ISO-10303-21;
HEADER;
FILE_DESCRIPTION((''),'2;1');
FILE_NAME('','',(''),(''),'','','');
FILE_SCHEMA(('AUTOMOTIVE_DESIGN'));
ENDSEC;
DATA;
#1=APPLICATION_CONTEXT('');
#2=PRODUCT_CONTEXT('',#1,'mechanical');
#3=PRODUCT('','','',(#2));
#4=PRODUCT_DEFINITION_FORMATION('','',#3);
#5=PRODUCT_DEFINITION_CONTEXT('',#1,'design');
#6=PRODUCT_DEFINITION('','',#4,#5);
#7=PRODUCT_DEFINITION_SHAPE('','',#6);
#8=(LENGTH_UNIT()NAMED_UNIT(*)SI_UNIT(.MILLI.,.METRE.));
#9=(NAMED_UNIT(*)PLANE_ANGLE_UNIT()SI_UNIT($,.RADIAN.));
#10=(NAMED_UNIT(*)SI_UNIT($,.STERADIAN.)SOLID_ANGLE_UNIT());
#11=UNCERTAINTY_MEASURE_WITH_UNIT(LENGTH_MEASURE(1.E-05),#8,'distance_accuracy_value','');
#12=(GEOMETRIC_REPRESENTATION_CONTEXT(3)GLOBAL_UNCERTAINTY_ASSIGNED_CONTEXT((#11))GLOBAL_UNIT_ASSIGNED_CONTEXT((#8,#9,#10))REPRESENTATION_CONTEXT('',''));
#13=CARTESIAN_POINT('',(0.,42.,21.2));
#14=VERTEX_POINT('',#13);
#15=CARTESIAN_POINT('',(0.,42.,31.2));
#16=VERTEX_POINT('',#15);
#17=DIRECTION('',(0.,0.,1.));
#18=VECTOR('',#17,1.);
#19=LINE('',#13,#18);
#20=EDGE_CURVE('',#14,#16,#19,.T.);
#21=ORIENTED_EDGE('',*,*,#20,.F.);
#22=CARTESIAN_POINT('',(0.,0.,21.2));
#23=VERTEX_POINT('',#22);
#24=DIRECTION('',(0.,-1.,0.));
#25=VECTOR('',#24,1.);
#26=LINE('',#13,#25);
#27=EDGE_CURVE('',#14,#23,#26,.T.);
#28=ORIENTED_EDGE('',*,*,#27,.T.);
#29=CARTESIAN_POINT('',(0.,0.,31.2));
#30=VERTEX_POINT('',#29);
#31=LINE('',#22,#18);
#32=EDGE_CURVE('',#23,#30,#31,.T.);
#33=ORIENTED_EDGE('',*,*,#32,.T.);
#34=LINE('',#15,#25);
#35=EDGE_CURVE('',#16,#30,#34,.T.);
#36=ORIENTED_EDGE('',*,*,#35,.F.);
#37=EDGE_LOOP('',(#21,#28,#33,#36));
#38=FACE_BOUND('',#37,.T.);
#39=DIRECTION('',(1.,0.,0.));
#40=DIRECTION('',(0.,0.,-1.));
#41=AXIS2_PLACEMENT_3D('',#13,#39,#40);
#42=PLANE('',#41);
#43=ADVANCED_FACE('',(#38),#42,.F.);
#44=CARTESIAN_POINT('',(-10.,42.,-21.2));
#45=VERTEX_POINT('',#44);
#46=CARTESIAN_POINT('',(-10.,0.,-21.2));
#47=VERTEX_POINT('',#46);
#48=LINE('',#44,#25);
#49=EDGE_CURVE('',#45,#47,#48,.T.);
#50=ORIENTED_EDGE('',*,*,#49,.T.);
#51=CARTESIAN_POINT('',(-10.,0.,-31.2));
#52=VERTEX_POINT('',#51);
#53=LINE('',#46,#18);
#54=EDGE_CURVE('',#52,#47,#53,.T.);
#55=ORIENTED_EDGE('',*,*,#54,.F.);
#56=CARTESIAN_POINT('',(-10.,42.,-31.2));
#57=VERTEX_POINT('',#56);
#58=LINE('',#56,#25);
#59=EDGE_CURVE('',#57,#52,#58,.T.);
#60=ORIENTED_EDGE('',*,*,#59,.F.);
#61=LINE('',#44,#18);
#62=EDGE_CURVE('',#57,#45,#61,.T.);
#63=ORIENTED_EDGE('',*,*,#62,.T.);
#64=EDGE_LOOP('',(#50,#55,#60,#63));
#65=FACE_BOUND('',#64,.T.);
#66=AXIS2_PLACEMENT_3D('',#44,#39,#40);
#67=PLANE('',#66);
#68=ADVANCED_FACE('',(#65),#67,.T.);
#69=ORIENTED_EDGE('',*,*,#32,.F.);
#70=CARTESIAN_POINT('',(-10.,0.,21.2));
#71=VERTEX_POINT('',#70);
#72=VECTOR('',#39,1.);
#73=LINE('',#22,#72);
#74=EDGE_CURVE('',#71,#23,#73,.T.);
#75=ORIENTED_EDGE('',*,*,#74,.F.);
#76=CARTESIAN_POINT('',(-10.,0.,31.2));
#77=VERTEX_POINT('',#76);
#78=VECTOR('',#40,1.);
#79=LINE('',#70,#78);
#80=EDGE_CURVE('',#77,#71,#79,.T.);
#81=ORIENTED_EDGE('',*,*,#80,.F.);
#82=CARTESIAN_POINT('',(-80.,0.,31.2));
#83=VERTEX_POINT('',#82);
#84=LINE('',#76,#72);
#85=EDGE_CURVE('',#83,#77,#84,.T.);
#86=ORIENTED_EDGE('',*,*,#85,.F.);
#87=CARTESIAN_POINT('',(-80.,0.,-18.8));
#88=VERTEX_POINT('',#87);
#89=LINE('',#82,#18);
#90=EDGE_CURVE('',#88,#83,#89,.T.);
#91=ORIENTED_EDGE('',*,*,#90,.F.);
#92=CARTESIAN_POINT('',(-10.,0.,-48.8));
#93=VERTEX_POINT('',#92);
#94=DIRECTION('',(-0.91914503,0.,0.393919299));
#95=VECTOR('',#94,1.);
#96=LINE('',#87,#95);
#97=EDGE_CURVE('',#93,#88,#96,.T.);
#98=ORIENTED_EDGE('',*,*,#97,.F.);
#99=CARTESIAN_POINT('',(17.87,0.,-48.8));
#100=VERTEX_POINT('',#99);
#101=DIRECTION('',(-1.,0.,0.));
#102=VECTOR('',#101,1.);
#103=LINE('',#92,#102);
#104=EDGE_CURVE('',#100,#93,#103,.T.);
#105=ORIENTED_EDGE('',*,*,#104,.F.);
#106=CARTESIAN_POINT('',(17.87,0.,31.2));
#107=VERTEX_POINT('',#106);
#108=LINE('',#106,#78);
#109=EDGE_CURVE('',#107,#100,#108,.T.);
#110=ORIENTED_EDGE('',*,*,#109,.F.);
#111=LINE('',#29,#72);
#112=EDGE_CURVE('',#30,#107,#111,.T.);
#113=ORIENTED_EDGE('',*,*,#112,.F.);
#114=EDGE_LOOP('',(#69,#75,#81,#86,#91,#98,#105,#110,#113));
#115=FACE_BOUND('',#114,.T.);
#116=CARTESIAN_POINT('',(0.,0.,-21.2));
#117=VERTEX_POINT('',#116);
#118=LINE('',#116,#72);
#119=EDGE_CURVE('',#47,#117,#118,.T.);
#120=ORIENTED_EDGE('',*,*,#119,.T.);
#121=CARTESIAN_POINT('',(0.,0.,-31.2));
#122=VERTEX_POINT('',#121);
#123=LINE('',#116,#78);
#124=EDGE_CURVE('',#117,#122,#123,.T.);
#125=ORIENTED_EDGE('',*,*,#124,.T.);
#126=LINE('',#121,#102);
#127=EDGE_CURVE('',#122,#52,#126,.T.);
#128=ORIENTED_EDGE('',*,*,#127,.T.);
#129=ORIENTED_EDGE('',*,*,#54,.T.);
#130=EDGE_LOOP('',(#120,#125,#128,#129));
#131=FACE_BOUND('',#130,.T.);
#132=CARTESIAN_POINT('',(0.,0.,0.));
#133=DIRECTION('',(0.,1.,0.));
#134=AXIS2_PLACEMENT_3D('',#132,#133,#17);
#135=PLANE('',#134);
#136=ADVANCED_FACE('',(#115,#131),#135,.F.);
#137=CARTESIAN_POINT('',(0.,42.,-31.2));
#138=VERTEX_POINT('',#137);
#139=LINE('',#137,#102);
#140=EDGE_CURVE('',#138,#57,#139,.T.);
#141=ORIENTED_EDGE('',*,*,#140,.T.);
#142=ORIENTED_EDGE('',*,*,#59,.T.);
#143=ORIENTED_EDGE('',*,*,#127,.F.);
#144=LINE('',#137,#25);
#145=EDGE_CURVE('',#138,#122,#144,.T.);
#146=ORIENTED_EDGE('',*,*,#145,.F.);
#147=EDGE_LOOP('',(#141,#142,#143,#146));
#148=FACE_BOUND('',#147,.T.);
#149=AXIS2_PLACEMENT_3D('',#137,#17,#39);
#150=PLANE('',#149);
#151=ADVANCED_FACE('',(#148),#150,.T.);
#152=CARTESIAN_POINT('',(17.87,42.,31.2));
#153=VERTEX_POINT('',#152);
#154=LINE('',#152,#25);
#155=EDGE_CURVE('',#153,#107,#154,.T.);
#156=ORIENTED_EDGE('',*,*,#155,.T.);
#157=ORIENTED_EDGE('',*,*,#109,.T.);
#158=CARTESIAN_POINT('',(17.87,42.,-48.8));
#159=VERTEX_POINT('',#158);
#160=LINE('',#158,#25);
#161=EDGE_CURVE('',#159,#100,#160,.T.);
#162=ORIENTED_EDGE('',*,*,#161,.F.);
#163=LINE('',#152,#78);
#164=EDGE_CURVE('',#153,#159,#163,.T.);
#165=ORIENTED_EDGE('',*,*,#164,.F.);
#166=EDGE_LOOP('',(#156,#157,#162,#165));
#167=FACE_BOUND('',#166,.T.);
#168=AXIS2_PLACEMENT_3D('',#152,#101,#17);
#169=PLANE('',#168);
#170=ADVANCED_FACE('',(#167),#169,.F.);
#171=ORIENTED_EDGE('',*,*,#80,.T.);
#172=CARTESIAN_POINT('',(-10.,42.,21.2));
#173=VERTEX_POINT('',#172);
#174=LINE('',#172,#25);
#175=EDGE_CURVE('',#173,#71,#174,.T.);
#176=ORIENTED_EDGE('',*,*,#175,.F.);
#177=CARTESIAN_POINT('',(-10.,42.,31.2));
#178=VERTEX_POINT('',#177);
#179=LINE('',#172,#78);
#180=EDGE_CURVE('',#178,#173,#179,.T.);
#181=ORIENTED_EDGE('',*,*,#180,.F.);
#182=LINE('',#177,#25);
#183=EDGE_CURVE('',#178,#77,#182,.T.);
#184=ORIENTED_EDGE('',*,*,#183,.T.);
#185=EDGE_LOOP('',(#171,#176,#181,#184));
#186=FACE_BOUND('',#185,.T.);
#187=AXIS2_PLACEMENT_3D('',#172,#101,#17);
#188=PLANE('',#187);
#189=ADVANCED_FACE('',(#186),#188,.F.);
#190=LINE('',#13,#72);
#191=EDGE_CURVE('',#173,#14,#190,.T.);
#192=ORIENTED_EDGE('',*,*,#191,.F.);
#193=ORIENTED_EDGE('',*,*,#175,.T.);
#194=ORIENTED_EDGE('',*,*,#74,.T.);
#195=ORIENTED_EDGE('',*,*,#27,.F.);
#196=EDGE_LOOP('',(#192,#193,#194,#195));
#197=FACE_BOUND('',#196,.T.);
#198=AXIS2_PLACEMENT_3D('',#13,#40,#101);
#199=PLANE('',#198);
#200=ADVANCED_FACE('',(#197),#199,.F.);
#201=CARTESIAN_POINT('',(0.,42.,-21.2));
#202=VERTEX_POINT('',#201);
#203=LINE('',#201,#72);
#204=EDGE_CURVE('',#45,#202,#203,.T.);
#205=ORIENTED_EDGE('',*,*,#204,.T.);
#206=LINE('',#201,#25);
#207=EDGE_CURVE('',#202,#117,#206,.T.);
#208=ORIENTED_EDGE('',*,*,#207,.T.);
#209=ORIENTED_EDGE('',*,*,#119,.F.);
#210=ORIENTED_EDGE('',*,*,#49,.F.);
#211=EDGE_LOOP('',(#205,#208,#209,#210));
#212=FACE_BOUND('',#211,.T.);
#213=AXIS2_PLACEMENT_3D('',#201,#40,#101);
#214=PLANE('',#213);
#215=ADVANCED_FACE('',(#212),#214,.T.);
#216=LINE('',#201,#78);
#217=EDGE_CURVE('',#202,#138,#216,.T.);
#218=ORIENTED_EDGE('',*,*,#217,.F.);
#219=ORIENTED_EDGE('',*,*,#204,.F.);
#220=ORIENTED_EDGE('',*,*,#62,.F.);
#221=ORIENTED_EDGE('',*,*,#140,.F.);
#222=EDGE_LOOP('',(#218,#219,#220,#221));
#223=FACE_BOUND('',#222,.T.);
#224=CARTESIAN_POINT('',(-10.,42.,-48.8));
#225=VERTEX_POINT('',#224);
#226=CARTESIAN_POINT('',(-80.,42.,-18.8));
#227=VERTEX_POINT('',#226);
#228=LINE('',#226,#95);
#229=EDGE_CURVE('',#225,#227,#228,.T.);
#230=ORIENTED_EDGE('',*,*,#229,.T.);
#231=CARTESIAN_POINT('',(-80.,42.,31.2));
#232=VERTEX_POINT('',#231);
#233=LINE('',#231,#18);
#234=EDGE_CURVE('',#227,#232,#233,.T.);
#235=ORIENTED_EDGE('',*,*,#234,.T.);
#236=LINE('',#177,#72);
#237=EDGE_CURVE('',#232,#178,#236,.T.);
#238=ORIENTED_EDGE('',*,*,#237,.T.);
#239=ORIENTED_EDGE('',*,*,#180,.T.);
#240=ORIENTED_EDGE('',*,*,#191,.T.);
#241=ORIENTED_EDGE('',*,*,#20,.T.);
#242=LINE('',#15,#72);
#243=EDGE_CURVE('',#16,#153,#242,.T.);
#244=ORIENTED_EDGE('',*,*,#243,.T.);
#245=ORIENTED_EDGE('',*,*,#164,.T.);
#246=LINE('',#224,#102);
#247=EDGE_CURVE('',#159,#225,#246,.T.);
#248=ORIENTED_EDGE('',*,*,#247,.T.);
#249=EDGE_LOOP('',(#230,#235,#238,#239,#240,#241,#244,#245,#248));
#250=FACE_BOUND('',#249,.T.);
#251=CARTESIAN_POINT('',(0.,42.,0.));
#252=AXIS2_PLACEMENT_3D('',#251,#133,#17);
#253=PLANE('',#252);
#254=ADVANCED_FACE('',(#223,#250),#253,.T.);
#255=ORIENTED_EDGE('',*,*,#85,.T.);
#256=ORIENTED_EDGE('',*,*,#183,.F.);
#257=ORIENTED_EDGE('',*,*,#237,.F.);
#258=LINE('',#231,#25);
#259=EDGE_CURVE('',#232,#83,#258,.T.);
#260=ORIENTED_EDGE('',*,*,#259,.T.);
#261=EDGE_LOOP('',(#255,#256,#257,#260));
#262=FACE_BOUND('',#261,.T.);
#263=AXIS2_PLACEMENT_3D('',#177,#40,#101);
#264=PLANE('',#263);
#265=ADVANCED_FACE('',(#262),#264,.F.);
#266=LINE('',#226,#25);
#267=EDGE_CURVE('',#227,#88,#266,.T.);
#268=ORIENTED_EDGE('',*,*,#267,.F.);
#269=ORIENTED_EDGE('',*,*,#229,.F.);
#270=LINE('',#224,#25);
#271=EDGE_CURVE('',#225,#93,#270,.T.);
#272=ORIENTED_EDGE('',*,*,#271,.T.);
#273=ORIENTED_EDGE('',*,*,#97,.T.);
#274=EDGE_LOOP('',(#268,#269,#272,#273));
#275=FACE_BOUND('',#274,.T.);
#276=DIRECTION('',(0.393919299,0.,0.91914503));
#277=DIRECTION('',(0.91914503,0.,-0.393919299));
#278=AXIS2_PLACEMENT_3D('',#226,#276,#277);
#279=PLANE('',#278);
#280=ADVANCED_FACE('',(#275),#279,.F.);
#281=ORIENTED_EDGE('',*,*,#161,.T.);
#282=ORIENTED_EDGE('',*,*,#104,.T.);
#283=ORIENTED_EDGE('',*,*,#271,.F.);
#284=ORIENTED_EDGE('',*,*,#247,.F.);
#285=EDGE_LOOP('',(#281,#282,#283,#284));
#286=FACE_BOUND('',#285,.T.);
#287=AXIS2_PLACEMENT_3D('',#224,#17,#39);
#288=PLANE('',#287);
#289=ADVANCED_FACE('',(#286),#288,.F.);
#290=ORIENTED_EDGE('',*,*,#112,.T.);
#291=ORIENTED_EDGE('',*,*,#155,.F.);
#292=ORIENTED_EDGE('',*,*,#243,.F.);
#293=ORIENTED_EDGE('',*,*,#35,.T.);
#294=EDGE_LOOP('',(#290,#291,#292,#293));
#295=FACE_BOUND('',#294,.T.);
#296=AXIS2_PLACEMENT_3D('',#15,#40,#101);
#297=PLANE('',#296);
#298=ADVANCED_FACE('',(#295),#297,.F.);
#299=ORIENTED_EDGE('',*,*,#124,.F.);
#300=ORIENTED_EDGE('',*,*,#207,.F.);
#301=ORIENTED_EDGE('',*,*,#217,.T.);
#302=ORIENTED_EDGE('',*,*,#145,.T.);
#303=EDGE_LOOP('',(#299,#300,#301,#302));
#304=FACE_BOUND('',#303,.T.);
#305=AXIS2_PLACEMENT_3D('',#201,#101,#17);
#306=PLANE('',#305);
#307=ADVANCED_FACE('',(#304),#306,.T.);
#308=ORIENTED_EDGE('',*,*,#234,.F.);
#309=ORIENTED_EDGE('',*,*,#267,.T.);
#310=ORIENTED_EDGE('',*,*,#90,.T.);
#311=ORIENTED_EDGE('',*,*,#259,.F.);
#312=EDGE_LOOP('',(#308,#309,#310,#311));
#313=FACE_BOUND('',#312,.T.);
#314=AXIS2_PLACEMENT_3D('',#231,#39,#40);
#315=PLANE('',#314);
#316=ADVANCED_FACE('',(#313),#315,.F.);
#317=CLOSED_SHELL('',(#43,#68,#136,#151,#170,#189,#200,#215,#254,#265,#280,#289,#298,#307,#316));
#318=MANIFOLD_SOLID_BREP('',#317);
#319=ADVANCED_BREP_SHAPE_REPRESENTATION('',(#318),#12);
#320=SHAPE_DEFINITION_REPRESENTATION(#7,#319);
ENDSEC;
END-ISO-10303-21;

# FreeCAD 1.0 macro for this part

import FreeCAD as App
import Part
import Sketcher
Q = App.Units.Quantity

doc = App.newDocument("Part")
body = doc.addObject("PartDesign::Body", "Body")

# Sketch on XZ plane
sketch1 = body.newObject("Sketcher::SketchObject", "Sketch")
sketch1.AttachmentSupport = (doc.getObject("XZ_Plane"), [""])
sketch1.MapMode = "FlatFace"
sketch1.addGeometry(Part.LineSegment(App.Vector(0, 21.2, 0), App.Vector(0, 31.2, 0)), False)
sketch1.addGeometry(Part.LineSegment(App.Vector(0, 31.2, 0), App.Vector(17.87, 31.2, 0)), False)
sketch1.addGeometry(Part.LineSegment(App.Vector(17.87, 31.2, 0), App.Vector(17.87, -48.8, 0)), False)
sketch1.addGeometry(Part.LineSegment(App.Vector(17.87, -48.8, 0), App.Vector(-10, -48.8, 0)), False)
sketch1.addGeometry(Part.LineSegment(App.Vector(-10, -48.8, 0), App.Vector(-80, -18.8, 0)), False)
sketch1.addGeometry(Part.LineSegment(App.Vector(-80, -18.8, 0), App.Vector(-80, 31.2, 0)), False)
sketch1.addGeometry(Part.LineSegment(App.Vector(-80, 31.2, 0), App.Vector(-10, 31.2, 0)), False)
sketch1.addGeometry(Part.LineSegment(App.Vector(-10, 31.2, 0), App.Vector(-10, 21.2, 0)), False)
sketch1.addGeometry(Part.LineSegment(App.Vector(-10, 21.2, 0), App.Vector(0, 21.2, 0)), False)
sketch1.addGeometry(Part.LineSegment(App.Vector(0, -21.2, 0), App.Vector(-10, -21.2, 0)), False)
sketch1.addGeometry(Part.LineSegment(App.Vector(-10, -21.2, 0), App.Vector(-10, -31.2, 0)), False)
sketch1.addGeometry(Part.LineSegment(App.Vector(-10, -31.2, 0), App.Vector(0, -31.2, 0)), False)
sketch1.addGeometry(Part.LineSegment(App.Vector(0, -31.2, 0), App.Vector(0, -21.2, 0)), False)
sketch1.addConstraint(Sketcher.Constraint("Coincident", 0, 2, 1, 1))
sketch1.addConstraint(Sketcher.Constraint("Coincident", 1, 2, 2, 1))
sketch1.addConstraint(Sketcher.Constraint("Coincident", 2, 2, 3, 1))
sketch1.addConstraint(Sketcher.Constraint("Coincident", 3, 2, 4, 1))
sketch1.addConstraint(Sketcher.Constraint("Coincident", 4, 2, 5, 1))
sketch1.addConstraint(Sketcher.Constraint("Coincident", 5, 2, 6, 1))
sketch1.addConstraint(Sketcher.Constraint("Coincident", 6, 2, 7, 1))
sketch1.addConstraint(Sketcher.Constraint("Coincident", 7, 2, 8, 1))
sketch1.addConstraint(Sketcher.Constraint("Coincident", 8, 2, 0, 1))
sketch1.addConstraint(Sketcher.Constraint("Coincident", 9, 2, 10, 1))
sketch1.addConstraint(Sketcher.Constraint("Coincident", 10, 2, 11, 1))
sketch1.addConstraint(Sketcher.Constraint("Coincident", 11, 2, 12, 1))
sketch1.addConstraint(Sketcher.Constraint("Coincident", 12, 2, 9, 1))
sketch1.addConstraint(Sketcher.Constraint("Vertical", 0))
sketch1.addConstraint(Sketcher.Constraint("Horizontal", 1))
sketch1.addConstraint(Sketcher.Constraint("Vertical", 2))
sketch1.addConstraint(Sketcher.Constraint("Horizontal", 3))
sketch1.addConstraint(Sketcher.Constraint("Vertical", 5))
sketch1.addConstraint(Sketcher.Constraint("Horizontal", 6))
sketch1.addConstraint(Sketcher.Constraint("Vertical", 7))
sketch1.addConstraint(Sketcher.Constraint("Horizontal", 8))
sketch1.addConstraint(Sketcher.Constraint("Horizontal", 9))
sketch1.addConstraint(Sketcher.Constraint("Vertical", 10))
sketch1.addConstraint(Sketcher.Constraint("Horizontal", 11))
sketch1.addConstraint(Sketcher.Constraint("Vertical", 12))
sketch1.addConstraint(Sketcher.Constraint("Symmetric", 0, 2, 11, 2, -1, 1))
sketch1.addConstraint(Sketcher.Constraint("Symmetric", 7, 2, 9, 2, -1))
sketch1.addConstraint(Sketcher.Constraint("PointOnObject", 0, 2, -2))
sketch1.addConstraint(Sketcher.Constraint("Horizontal", 1, 2, 5, 2))
sketch1.addConstraint(Sketcher.Constraint("Vertical", 3, 2, 6, 2))
sketch1.addConstraint(Sketcher.Constraint("Equal", 11, 0))
sketch1.addConstraint(Sketcher.Constraint("DistanceX", 6, 1, 6, 2, Q("70 mm")))
sketch1.addConstraint(Sketcher.Constraint("DistanceX", 8, 1, 8, 2, Q("10 mm")))
sketch1.addConstraint(Sketcher.Constraint("DistanceY", 2, 2, 2, 1, Q("80 mm")))
sketch1.addConstraint(Sketcher.Constraint("DistanceY", 5, 1, 5, 2, Q("50 mm")))
sketch1.addConstraint(Sketcher.Constraint("DistanceX", 1, 1, 1, 2, Q("17.87 mm")))
sketch1.addConstraint(Sketcher.Constraint("DistanceY", -1, 1, 0, 2, Q("31.2 mm")))
pad1 = body.newObject("PartDesign::Pad", "Pad")
pad1.Profile = sketch1
pad1.Length = 42
pad1.Reversed = True

doc.recompute()
